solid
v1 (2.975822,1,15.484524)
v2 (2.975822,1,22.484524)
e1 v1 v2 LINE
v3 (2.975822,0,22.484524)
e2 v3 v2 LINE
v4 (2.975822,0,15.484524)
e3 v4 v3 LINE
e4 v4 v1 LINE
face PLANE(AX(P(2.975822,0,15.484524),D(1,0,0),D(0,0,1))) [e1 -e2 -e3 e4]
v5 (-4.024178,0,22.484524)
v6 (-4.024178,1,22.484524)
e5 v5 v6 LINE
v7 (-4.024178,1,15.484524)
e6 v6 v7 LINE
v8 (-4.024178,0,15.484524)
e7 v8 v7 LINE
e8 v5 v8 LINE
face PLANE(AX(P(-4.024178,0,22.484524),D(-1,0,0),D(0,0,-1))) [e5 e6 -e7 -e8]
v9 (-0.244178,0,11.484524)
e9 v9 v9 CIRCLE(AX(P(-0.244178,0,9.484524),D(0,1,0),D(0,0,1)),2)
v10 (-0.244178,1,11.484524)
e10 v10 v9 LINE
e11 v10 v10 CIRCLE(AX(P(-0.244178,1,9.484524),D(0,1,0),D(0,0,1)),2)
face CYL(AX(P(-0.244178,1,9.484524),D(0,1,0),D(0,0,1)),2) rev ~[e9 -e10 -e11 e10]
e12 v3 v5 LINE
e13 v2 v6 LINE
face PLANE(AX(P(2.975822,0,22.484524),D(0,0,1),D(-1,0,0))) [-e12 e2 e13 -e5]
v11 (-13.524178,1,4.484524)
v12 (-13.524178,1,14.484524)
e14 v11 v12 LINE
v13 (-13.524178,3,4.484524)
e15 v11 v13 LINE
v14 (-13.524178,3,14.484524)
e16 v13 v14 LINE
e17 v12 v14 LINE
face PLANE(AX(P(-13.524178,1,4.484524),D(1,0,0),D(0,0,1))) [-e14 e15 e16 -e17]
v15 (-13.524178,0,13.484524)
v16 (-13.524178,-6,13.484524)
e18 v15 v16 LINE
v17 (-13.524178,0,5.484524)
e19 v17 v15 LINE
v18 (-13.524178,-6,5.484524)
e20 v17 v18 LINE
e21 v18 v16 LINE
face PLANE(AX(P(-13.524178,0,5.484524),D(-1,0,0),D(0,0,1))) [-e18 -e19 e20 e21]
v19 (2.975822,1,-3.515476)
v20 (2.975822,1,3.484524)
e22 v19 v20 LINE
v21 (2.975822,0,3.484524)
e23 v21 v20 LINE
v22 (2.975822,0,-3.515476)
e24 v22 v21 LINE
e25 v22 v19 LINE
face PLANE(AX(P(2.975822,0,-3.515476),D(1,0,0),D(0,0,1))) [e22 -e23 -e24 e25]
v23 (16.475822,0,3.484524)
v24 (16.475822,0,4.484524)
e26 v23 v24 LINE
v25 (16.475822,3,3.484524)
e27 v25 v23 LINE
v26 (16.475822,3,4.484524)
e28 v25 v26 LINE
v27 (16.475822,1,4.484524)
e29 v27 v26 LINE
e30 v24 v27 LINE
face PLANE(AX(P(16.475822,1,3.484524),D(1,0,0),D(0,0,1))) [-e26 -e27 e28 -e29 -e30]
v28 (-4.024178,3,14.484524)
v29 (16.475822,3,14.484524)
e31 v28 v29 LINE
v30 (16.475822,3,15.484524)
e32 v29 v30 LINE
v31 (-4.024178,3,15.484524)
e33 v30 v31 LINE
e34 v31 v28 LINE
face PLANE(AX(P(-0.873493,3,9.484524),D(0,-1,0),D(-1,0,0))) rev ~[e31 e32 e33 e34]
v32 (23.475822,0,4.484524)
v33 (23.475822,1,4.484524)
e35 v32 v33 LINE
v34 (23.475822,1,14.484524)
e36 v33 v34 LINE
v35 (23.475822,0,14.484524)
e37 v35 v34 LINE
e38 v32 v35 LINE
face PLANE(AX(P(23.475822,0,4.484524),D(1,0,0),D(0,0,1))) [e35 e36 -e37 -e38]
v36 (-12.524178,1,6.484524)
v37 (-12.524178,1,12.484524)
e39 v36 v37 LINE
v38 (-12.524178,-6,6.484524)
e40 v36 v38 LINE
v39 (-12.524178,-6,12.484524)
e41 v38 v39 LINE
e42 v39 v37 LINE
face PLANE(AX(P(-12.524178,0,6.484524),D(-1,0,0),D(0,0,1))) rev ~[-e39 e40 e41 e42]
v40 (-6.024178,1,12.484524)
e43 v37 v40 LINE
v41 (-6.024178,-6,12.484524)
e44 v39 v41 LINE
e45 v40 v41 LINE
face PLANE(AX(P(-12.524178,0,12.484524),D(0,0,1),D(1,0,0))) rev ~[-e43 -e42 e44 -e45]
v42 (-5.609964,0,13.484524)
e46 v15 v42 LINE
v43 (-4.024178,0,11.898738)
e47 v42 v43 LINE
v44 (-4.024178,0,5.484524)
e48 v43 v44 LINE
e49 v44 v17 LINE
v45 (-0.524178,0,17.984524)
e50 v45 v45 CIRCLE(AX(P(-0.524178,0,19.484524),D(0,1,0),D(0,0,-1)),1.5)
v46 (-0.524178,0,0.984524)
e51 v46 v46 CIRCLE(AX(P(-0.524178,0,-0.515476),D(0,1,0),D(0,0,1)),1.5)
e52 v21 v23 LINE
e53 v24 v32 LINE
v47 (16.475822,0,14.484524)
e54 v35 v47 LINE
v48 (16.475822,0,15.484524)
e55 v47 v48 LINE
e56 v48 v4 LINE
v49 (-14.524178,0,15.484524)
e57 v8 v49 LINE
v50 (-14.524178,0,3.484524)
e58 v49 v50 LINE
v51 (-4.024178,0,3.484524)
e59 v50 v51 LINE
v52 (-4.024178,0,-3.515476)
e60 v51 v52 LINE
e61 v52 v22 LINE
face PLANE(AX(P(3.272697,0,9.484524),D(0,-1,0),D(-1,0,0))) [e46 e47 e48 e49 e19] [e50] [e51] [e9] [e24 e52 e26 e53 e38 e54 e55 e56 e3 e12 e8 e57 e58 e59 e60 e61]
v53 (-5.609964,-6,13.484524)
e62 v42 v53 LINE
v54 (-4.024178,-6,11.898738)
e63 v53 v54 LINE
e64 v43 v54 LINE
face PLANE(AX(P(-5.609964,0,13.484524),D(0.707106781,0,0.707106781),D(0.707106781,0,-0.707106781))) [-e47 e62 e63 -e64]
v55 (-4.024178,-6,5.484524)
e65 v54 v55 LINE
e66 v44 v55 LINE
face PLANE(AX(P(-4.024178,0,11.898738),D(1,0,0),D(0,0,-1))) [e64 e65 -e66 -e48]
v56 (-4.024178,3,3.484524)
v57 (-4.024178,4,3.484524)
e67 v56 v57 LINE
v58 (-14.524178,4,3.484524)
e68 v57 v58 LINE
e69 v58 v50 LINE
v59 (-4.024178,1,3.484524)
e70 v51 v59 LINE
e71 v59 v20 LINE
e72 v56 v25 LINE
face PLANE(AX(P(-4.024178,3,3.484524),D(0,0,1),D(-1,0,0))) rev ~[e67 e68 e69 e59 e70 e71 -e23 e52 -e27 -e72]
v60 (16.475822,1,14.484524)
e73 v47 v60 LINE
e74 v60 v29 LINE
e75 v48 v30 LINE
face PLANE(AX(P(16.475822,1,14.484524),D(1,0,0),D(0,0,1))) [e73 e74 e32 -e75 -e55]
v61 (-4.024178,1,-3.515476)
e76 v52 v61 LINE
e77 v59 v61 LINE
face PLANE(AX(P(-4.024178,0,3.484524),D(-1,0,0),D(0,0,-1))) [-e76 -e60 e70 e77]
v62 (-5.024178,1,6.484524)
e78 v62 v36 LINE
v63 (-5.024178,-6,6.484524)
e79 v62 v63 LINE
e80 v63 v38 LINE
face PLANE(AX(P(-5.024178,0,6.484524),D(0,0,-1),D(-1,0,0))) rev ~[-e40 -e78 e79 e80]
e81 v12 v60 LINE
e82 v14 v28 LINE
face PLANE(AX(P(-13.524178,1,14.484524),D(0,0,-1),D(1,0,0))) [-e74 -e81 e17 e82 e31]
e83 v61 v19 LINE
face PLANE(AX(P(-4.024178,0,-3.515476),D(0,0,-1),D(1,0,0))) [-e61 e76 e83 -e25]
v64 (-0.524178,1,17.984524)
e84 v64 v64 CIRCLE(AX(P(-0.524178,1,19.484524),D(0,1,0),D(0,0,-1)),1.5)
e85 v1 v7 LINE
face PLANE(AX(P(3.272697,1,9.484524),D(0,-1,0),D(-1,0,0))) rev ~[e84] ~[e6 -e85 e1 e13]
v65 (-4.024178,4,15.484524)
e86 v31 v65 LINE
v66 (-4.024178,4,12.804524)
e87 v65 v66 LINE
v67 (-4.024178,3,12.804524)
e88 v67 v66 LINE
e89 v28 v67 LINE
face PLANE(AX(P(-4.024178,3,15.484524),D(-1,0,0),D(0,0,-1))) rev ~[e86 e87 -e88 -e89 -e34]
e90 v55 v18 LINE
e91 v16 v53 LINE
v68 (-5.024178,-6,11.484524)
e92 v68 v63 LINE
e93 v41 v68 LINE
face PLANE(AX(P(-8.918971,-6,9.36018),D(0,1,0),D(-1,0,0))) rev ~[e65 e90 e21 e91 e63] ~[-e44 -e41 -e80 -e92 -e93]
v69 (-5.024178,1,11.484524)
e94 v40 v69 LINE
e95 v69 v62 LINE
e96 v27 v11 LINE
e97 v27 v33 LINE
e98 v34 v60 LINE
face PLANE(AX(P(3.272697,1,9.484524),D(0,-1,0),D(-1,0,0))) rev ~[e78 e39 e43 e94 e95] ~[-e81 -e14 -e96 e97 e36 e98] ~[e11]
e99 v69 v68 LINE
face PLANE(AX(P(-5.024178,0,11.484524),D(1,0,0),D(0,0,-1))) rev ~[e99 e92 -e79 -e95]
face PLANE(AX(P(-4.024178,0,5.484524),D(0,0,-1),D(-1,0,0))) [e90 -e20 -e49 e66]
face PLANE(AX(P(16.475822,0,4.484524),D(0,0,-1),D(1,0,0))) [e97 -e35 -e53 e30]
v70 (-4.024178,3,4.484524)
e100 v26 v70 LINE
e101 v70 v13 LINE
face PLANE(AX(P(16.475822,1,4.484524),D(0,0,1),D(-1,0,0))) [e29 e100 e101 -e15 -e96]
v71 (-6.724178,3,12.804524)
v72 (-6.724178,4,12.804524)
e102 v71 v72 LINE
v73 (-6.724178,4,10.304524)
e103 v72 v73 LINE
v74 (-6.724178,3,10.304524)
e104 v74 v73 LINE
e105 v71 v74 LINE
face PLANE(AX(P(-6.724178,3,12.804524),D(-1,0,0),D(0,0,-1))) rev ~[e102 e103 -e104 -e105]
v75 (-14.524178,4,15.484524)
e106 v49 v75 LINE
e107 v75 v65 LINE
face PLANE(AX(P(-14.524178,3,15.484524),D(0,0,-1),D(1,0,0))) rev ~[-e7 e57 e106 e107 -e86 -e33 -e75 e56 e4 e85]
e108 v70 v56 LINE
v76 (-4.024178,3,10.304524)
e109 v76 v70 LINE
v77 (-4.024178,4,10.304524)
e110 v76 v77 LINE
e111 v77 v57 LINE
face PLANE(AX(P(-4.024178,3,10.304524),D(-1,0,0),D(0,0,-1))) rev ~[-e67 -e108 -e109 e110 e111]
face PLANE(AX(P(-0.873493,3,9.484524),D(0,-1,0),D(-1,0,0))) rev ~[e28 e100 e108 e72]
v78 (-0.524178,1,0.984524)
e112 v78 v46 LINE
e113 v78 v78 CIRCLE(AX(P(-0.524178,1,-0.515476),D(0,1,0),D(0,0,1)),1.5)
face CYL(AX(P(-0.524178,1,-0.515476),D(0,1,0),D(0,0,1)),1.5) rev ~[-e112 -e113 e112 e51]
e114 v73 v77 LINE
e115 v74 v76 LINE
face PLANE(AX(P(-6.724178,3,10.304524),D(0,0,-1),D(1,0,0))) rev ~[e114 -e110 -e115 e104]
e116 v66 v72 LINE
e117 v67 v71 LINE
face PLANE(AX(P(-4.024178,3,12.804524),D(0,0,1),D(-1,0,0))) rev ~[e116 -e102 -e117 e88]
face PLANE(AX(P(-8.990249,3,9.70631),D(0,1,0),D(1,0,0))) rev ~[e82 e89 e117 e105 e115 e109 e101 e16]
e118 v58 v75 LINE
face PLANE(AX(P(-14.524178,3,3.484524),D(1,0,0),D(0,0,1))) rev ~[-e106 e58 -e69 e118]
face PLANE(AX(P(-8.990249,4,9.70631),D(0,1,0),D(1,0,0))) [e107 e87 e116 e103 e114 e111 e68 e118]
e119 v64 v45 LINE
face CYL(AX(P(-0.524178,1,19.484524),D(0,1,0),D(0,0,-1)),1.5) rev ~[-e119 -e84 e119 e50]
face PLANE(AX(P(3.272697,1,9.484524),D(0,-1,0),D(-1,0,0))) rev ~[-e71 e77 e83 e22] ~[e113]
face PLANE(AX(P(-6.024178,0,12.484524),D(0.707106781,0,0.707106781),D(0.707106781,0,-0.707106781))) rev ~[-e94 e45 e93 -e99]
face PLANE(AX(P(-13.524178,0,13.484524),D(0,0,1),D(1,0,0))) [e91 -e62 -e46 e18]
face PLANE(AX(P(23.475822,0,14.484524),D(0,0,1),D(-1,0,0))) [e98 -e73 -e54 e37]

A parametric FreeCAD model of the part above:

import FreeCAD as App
import Part
import Sketcher

V = App.Vector
Q = App.Units.Quantity


def add_polygon(sketch, points):
    """Adds a closed chain of lines whose ends are joined by coincident constraints."""
    first, n = sketch.GeometryCount, len(points)
    for a, b in zip(points, points[1:] + points[:1]):
        sketch.addGeometry(Part.LineSegment(App.Vector(*a, 0), App.Vector(*b, 0)), False)
    for i in range(n):
        sketch.addConstraint(Sketcher.Constraint("Coincident", first + i, 2, first + (i + 1) % n, 1))

doc = App.newDocument("Part")
body = doc.addObject("PartDesign::Body", "Body")

sketch1 = body.newObject("Sketcher::SketchObject", "Sketch")
sketch1.AttachmentSupport = (doc.getObject("XZ_Plane"), [""])
sketch1.MapMode = "FlatFace"
add_polygon(sketch1, [(23.5, 14.5), (23.5, 4.5), (16.5, 4.5), (16.5, 3.5), (3, 3.5), (3, -3.5), (-4, -3.5), (-4, 3.5), (-14.5, 3.5), (-14.5, 15.5), (-4, 15.5), (-4, 22.5), (3, 22.5), (3, 15.5), (16.5, 15.5), (16.5, 14.5)])
add_polygon(sketch1, [(-12.5, 6.5), (-5, 6.5), (-5, 11.5), (-6, 12.5), (-12.5, 12.5)])
sketch1.addConstraint([
    Sketcher.Constraint("Vertical", 0),
    Sketcher.Constraint("Horizontal", 1),
    Sketcher.Constraint("Vertical", 2),
    Sketcher.Constraint("Horizontal", 3),
    Sketcher.Constraint("Vertical", 4),
    Sketcher.Constraint("Horizontal", 5),
    Sketcher.Constraint("Vertical", 6),
    Sketcher.Constraint("Horizontal", 7),
    Sketcher.Constraint("Vertical", 8),
    Sketcher.Constraint("Horizontal", 9),
    Sketcher.Constraint("Vertical", 10),
    Sketcher.Constraint("Horizontal", 11),
    Sketcher.Constraint("Vertical", 12),
    Sketcher.Constraint("Horizontal", 13),
    Sketcher.Constraint("Vertical", 14),
    Sketcher.Constraint("Horizontal", 15),
    Sketcher.Constraint("Horizontal", 16),
    Sketcher.Constraint("Vertical", 17),
    Sketcher.Constraint("Horizontal", 19),
    Sketcher.Constraint("Vertical", 20),
    Sketcher.Constraint("Horizontal", 3, 2, 6, 2),
    Sketcher.Constraint("Horizontal", 9, 2, 12, 2),
    Sketcher.Constraint("Vertical", 6, 2, 9, 2),
    Sketcher.Constraint("Vertical", 4, 2, 11, 2),
    Sketcher.Constraint("Vertical", 2, 2, 13, 2),
    Sketcher.Constraint("Equal", 1, 5),
    Sketcher.Constraint("Equal", 15, 4),
    Sketcher.Constraint("Equal", 6, 10),
    Sketcher.Constraint("Equal", 2, 14),
    Sketcher.Constraint("DistanceX", 1, 2, 1, 1, Q("7 mm")),
    Sketcher.Constraint("DistanceY", 0, 2, 0, 1, Q("10 mm")),
    Sketcher.Constraint("DistanceY", 2, 2, 2, 1, Q("1 mm")),
    Sketcher.Constraint("DistanceY", 17, 1, 17, 2, Q("5 mm")),
    Sketcher.Constraint("DistanceY", 20, 2, 20, 1, Q("6 mm")),
    Sketcher.Constraint("Angle", 18, Q("135 deg")),
    Sketcher.Constraint("DistanceX", 3, 2, 3, 1, Q("13.5 mm")),
    Sketcher.Constraint("DistanceX", 7, 2, 7, 1, Q("10.5 mm")),
    Sketcher.Constraint("DistanceX", 16, 1, 16, 2, Q("7.5 mm")),
    Sketcher.Constraint("DistanceX", 16, 2, 6, 2, Q("1 mm")),
    Sketcher.Constraint("DistanceY", 6, 2, 16, 2, Q("3 mm")),
    Sketcher.Constraint("DistanceX", -1, 1, 0, 2, Q("23.475822 mm")),
    Sketcher.Constraint("DistanceY", -1, 1, 0, 2, Q("4.484524 mm")),
])
pad1 = body.newObject("PartDesign::Pad", "Pad")
pad1.Profile = sketch1
pad1.Length = 1
pad1.Reversed = True

sketch2 = body.newObject("Sketcher::SketchObject", "Sketch001")
sketch2.AttachmentSupport = (doc.getObject("XZ_Plane"), [""])
sketch2.MapMode = "FlatFace"
add_polygon(sketch2, [(-13.5, 13.5), (-13.5, 5.5), (-4, 5.5), (-4, 11.9), (-5.6, 13.5)])
add_polygon(sketch2, [(-12.5, 12.5), (-6, 12.5), (-5, 11.5), (-5, 6.5), (-12.5, 6.5)])
sketch2.addConstraint([
    Sketcher.Constraint("Vertical", 0),
    Sketcher.Constraint("Horizontal", 1),
    Sketcher.Constraint("Vertical", 2),
    Sketcher.Constraint("Horizontal", 4),
    Sketcher.Constraint("Horizontal", 5),
    Sketcher.Constraint("Vertical", 7),
    Sketcher.Constraint("Horizontal", 8),
    Sketcher.Constraint("Vertical", 9),
    Sketcher.Constraint("Parallel", 3, 6),
    Sketcher.Constraint("DistanceY", 0, 2, 0, 1, Q("8 mm")),
    Sketcher.Constraint("DistanceY", 7, 2, 7, 1, Q("5 mm")),
    Sketcher.Constraint("DistanceY", 9, 1, 9, 2, Q("6 mm")),
    Sketcher.Constraint("Angle", 3, Q("135 deg")),
    Sketcher.Constraint("DistanceX", 1, 1, 1, 2, Q("9.5 mm")),
    Sketcher.Constraint("DistanceX", 5, 1, 5, 2, Q("6.5 mm")),
    Sketcher.Constraint("DistanceY", 5, 2, 3, 2, Q("1 mm")),
    Sketcher.Constraint("DistanceX", 5, 2, 2, 2, Q("2 mm")),
    Sketcher.Constraint("Distance", 3, Q("2.242641 mm")),
    Sketcher.Constraint("DistanceX", 0, 2, -1, 1, Q("13.524178 mm")),
    Sketcher.Constraint("DistanceY", -1, 1, 0, 2, Q("5.484524 mm")),
])
pad2 = body.newObject("PartDesign::Pad", "Pad001")
pad2.Profile = sketch2
pad2.Length = 6

sketch3 = body.newObject("Sketcher::SketchObject", "Sketch002")
sketch3.AttachmentSupport = (doc.getObject("XZ_Plane"), [""])
sketch3.MapMode = "FlatFace"
sketch3.AttachmentOffset = App.Placement(V(0, 0, -1), App.Rotation())
sketch3.addGeometry(Part.Circle(V(-0.2, 9.5, 0), V(0, 0, 1), 2), False)
sketch3.addConstraint([
    Sketcher.Constraint("Diameter", 0, Q("4 mm")),
    Sketcher.Constraint("DistanceX", 0, 3, -1, 1, Q("0.244178 mm")),
    Sketcher.Constraint("DistanceY", -1, 1, 0, 3, Q("9.484524 mm")),
])
pocket1 = body.newObject("PartDesign::Pocket", "Pocket")
pocket1.Profile = sketch3
pocket1.Length = 1
pocket1.Reversed = True

sketch4 = body.newObject("Sketcher::SketchObject", "Sketch003")
sketch4.AttachmentSupport = (doc.getObject("XZ_Plane"), [""])
sketch4.MapMode = "FlatFace"
sketch4.AttachmentOffset = App.Placement(V(0, 0, -1), App.Rotation())
add_polygon(sketch4, [(16.5, 3.5), (-14.5, 3.5), (-14.5, 15.5), (16.5, 15.5), (16.5, 14.5), (-13.5, 14.5), (-13.5, 4.5), (16.5, 4.5)])
sketch4.addConstraint([
    Sketcher.Constraint("Horizontal", 0),
    Sketcher.Constraint("Vertical", 1),
    Sketcher.Constraint("Horizontal", 2),
    Sketcher.Constraint("Vertical", 3),
    Sketcher.Constraint("Horizontal", 4),
    Sketcher.Constraint("Vertical", 5),
    Sketcher.Constraint("Horizontal", 6),
    Sketcher.Constraint("Vertical", 7),
    Sketcher.Constraint("Vertical", 3, 2, 6, 2),
    Sketcher.Constraint("Equal", 3, 7),
    Sketcher.Constraint("DistanceX", 0, 2, 0, 1, Q("31 mm")),
    Sketcher.Constraint("DistanceX", 4, 2, 4, 1, Q("30 mm")),
    Sketcher.Constraint("DistanceY", 1, 1, 1, 2, Q("12 mm")),
    Sketcher.Constraint("DistanceY", 3, 2, 3, 1, Q("1 mm")),
    Sketcher.Constraint("DistanceX", 0, 2, -1, 1, Q("14.524178 mm")),
    Sketcher.Constraint("DistanceY", -1, 1, 0, 2, Q("3.484524 mm")),
])
pad3 = body.newObject("PartDesign::Pad", "Pad002")
pad3.Profile = sketch4
pad3.Length = 2
pad3.Reversed = True

sketch5 = body.newObject("Sketcher::SketchObject", "Sketch004")
sketch5.AttachmentSupport = (doc.getObject("XZ_Plane"), [""])
sketch5.MapMode = "FlatFace"
sketch5.AttachmentOffset = App.Placement(V(0, 0, -3), App.Rotation())
add_polygon(sketch5, [(-14.5, 3.5), (-14.5, 15.5), (-4, 15.5), (-4, 12.8), (-6.7, 12.8), (-6.7, 10.3), (-4, 10.3), (-4, 3.5)])
sketch5.addConstraint([
    Sketcher.Constraint("Vertical", 0),
    Sketcher.Constraint("Horizontal", 1),
    Sketcher.Constraint("Vertical", 2),
    Sketcher.Constraint("Horizontal", 3),
    Sketcher.Constraint("Vertical", 4),
    Sketcher.Constraint("Horizontal", 5),
    Sketcher.Constraint("Vertical", 6),
    Sketcher.Constraint("Horizontal", 7),
    Sketcher.Constraint("Vertical", 2, 2, 5, 2),
    Sketcher.Constraint("DistanceY", 0, 1, 0, 2, Q("12 mm")),
    Sketcher.Constraint("DistanceX", 1, 1, 1, 2, Q("10.5 mm")),
    Sketcher.Constraint("DistanceX", 3, 2, 3, 1, Q("2.7 mm")),
    Sketcher.Constraint("DistanceY", 4, 2, 4, 1, Q("2.5 mm")),
    Sketcher.Constraint("DistanceY", 2, 2, 2, 1, Q("2.68 mm")),
    Sketcher.Constraint("DistanceX", 0, 2, -1, 1, Q("14.524178 mm")),
    Sketcher.Constraint("DistanceY", -1, 1, 0, 2, Q("15.484524 mm")),
])
pad4 = body.newObject("PartDesign::Pad", "Pad003")
pad4.Profile = sketch5
pad4.Length = 1
pad4.Reversed = True

sketch6 = body.newObject("Sketcher::SketchObject", "Sketch005")
sketch6.AttachmentSupport = (doc.getObject("XZ_Plane"), [""])
sketch6.MapMode = "FlatFace"
sketch6.AttachmentOffset = App.Placement(V(0, 0, -1), App.Rotation())
sketch6.addGeometry([
    Part.Circle(V(-0.5, -0.5, 0), V(0, 0, 1), 1.5),
    Part.Circle(V(-0.5, 19.5, 0), V(0, 0, 1), 1.5),
], False)
sketch6.addConstraint([
    Sketcher.Constraint("Equal", 0, 1),
    Sketcher.Constraint("Vertical", 0, 3, 1, 3),
    Sketcher.Constraint("Diameter", 0, Q("3 mm")),
    Sketcher.Constraint("DistanceY", 0, 3, 1, 3, Q("20 mm")),
    Sketcher.Constraint("DistanceX", 0, 3, -1, 1, Q("0.524178 mm")),
    Sketcher.Constraint("DistanceY", 0, 3, -1, 1, Q("0.515476 mm")),
])
pocket2 = body.newObject("PartDesign::Pocket", "Pocket001")
pocket2.Profile = sketch6
pocket2.Length = 1
pocket2.Reversed = True

doc.recompute()
